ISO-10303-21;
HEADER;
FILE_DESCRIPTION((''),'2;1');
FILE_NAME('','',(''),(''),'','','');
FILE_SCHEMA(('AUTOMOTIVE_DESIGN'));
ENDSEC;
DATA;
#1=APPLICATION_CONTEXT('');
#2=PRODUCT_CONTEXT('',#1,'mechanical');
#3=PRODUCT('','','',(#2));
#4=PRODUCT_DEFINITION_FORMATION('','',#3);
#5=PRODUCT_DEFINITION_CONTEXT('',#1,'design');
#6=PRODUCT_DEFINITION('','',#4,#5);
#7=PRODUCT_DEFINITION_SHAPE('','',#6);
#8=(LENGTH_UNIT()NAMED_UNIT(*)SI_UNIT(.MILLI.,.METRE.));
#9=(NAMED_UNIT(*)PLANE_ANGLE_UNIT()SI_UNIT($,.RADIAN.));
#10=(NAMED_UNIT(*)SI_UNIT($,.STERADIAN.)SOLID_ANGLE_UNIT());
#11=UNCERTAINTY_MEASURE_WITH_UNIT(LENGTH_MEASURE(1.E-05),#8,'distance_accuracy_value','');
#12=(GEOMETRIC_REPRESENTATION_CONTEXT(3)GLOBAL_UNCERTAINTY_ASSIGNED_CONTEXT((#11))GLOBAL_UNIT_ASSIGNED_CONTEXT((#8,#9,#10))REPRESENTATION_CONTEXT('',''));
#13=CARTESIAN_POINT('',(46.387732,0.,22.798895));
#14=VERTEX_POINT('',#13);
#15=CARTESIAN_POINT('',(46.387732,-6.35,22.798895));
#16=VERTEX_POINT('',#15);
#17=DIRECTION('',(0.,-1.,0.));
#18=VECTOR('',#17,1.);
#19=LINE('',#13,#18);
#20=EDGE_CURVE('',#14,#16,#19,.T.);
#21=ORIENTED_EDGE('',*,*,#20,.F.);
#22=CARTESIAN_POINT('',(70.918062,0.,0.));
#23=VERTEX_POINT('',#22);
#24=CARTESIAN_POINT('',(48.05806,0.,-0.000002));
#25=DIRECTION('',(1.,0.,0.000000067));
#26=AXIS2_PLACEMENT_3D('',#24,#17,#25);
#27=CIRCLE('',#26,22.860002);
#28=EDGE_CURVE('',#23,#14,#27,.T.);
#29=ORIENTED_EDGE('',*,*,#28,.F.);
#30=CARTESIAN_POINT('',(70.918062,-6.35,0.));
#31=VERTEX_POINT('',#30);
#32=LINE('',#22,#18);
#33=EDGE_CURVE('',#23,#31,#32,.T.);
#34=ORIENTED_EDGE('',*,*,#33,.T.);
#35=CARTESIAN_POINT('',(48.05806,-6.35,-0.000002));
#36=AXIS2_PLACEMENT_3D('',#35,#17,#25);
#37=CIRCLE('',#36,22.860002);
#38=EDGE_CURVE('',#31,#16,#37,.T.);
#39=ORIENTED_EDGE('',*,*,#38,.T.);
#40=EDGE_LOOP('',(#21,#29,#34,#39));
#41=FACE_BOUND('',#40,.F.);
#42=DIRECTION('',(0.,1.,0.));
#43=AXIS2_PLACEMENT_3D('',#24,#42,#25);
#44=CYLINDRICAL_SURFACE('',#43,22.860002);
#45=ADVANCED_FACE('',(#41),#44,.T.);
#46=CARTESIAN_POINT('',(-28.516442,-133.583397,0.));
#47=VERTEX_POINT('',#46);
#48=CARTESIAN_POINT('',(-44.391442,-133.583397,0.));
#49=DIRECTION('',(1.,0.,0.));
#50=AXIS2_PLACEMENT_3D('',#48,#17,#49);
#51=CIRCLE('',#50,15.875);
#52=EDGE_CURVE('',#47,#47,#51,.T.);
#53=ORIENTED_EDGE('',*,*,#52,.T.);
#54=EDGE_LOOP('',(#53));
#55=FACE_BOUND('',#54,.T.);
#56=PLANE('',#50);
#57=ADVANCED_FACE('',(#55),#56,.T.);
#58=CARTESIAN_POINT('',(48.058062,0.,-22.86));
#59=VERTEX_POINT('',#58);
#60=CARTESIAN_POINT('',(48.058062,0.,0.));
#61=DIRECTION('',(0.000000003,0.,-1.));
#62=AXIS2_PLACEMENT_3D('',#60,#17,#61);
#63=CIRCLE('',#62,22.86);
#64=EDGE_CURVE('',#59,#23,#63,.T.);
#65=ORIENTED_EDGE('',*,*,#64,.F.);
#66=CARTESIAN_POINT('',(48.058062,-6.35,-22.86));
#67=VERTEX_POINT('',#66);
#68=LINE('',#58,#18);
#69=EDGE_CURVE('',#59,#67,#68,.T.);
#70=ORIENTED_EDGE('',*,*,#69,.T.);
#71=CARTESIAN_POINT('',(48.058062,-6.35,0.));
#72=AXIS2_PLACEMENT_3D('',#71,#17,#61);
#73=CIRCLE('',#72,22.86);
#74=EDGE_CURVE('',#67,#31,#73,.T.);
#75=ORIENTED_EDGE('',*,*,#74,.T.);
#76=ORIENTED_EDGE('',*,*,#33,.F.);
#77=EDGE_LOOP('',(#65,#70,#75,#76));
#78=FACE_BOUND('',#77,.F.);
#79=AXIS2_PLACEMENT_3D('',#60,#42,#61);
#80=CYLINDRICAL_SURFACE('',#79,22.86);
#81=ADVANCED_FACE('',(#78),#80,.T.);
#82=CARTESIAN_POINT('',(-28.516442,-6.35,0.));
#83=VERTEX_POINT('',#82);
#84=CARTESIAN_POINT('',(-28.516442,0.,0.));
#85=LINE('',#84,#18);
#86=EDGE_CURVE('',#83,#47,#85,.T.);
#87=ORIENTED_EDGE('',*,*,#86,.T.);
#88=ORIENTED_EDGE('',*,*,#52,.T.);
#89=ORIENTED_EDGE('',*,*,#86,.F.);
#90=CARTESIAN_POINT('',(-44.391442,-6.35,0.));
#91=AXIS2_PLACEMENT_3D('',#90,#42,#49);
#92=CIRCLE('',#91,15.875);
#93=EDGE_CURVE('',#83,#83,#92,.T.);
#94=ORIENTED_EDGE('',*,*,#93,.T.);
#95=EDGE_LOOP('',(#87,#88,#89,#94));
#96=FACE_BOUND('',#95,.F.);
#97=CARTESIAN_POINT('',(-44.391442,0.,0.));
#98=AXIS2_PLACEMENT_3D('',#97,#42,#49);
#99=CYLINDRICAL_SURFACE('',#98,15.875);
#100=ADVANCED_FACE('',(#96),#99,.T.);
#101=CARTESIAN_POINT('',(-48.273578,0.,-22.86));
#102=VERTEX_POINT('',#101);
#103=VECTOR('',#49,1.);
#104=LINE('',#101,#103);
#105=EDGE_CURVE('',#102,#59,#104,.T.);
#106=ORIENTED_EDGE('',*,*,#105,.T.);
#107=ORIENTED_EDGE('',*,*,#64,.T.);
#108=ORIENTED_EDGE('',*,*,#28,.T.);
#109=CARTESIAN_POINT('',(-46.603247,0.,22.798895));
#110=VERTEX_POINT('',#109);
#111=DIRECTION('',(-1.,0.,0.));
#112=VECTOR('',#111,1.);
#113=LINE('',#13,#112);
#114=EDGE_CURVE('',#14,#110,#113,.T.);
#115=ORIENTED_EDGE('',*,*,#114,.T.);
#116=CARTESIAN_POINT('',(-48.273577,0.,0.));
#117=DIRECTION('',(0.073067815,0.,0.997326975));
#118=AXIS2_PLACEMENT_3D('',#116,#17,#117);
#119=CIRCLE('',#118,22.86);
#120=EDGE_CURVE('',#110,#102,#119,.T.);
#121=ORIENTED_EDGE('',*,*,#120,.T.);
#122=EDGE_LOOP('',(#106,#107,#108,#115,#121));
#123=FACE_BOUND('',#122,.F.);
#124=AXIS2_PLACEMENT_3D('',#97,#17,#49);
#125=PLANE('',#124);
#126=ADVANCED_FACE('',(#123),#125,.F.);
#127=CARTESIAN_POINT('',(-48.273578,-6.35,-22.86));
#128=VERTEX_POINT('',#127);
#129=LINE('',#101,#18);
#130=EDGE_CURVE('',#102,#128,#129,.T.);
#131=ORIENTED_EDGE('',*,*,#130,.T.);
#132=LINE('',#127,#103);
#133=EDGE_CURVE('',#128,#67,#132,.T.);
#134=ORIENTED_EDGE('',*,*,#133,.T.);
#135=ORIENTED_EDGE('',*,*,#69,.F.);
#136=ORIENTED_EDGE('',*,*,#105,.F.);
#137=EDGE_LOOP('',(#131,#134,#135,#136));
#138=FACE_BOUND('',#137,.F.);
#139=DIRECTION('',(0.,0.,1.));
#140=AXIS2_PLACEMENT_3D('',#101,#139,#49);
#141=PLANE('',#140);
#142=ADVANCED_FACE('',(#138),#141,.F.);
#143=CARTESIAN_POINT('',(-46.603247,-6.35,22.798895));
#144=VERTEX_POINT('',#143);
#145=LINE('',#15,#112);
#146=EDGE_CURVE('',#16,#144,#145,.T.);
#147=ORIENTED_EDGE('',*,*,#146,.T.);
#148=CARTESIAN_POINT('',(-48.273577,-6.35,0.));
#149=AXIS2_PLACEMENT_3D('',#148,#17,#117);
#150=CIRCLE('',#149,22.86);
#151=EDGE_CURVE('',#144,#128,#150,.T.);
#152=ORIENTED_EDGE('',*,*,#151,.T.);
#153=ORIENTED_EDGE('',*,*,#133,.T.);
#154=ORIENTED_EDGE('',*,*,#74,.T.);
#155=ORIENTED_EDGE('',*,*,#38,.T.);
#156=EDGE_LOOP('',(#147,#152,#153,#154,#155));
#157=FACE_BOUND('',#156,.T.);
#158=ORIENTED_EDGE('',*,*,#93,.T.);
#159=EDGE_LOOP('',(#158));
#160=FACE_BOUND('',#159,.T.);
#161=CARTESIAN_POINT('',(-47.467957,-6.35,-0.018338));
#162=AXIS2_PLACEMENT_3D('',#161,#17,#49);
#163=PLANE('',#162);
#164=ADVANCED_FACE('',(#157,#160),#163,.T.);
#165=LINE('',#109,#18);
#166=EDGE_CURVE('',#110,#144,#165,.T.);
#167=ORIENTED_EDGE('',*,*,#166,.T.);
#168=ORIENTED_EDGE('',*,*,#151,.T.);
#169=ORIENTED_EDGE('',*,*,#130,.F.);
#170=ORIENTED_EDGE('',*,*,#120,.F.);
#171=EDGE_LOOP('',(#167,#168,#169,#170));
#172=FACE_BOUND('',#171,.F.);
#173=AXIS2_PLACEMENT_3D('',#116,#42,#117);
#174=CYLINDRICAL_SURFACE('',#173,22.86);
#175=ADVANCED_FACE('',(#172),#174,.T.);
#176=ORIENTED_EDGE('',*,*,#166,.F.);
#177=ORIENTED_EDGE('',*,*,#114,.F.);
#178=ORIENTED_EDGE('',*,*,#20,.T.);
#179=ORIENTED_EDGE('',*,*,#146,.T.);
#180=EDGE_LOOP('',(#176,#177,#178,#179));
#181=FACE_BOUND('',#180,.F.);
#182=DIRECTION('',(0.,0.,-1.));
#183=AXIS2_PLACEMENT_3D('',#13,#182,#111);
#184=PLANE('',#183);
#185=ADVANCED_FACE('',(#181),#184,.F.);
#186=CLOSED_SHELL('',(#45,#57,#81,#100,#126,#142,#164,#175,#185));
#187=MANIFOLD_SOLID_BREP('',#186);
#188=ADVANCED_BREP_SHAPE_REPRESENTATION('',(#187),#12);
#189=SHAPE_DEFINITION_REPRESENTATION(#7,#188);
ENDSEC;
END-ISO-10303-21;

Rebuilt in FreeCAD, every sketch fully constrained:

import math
import FreeCAD as App
import Part
import Sketcher
Q = App.Units.Quantity

doc = App.newDocument("Part")
body = doc.addObject("PartDesign::Body", "Body")

# Sketch on XZ plane
sketch1 = body.newObject("Sketcher::SketchObject", "Sketch")
sketch1.AttachmentSupport = (doc.getObject("XZ_Plane"), [""])
sketch1.MapMode = "FlatFace"
sketch1.addGeometry([
    Part.ArcOfCircle(Part.Circle(App.Vector(-48, 0, 0), App.Vector(0, 0, 1), 23), math.radians(86), math.radians(270)),  # 0
    Part.LineSegment(App.Vector(-48, -23, 0), App.Vector(48, -23, 0)),  # 1
    Part.ArcOfCircle(Part.Circle(App.Vector(48, 0, 0), App.Vector(0, 0, 1), 23), math.radians(-90), math.radians(0)),  # 2
    Part.ArcOfCircle(Part.Circle(App.Vector(48, 0, 0), App.Vector(0, 0, 1), 23), math.radians(0), math.radians(94)),  # 3
    Part.LineSegment(App.Vector(46, 23, 0), App.Vector(-47, 23, 0)),  # 4
], False)
sketch1.addConstraint([
    Sketcher.Constraint("Tangent", 0, 2, 1, 1),
    Sketcher.Constraint("Tangent", 1, 2, 2, 1),
    Sketcher.Constraint("Tangent", 2, 2, 3, 1),
    Sketcher.Constraint("Coincident", 3, 2, 4, 1),
    Sketcher.Constraint("Coincident", 4, 2, 0, 1),
    Sketcher.Constraint("Horizontal", 1),
    Sketcher.Constraint("Horizontal", 4),
    Sketcher.Constraint("Equal", 0, 2),
    Sketcher.Constraint("Equal", 2, 3),
    Sketcher.Constraint("PointOnObject", 0, 3, -1),
    Sketcher.Constraint("PointOnObject", 2, 2, -1),
    Sketcher.Constraint("Radius", 0, Q("0.9 in")),
    Sketcher.Constraint("DistanceX", 1, 1, 1, 2, Q("96.33164 mm")),
    Sketcher.Constraint("DistanceX", 4, 2, 4, 1, Q("92.990979 mm")),
    Sketcher.Constraint("DistanceX", -1, 1, 2, 3, Q("48.058062 mm")),
])
pad1 = body.newObject("PartDesign::Pad", "Pad")
pad1.Profile = sketch1
pad1.Length = Q("0.25 in")

# Sketch on XZ plane
sketch2 = body.newObject("Sketcher::SketchObject", "Sketch001")
sketch2.AttachmentSupport = (doc.getObject("XZ_Plane"), [""])
sketch2.MapMode = "FlatFace"
sketch2.addGeometry(Part.Circle(App.Vector(-44, 0, 0), App.Vector(0, 0, 1), 16), False)
sketch2.addConstraint([
    Sketcher.Constraint("PointOnObject", 0, 3, -1),
    Sketcher.Constraint("Diameter", 0, Q("1.25 in")),
    Sketcher.Constraint("DistanceX", 0, 3, -1, 1, Q("44.391442 mm")),
])
pad2 = body.newObject("PartDesign::Pad", "Pad001")
pad2.Profile = sketch2
pad2.Length = 133.583397

doc.recompute()
